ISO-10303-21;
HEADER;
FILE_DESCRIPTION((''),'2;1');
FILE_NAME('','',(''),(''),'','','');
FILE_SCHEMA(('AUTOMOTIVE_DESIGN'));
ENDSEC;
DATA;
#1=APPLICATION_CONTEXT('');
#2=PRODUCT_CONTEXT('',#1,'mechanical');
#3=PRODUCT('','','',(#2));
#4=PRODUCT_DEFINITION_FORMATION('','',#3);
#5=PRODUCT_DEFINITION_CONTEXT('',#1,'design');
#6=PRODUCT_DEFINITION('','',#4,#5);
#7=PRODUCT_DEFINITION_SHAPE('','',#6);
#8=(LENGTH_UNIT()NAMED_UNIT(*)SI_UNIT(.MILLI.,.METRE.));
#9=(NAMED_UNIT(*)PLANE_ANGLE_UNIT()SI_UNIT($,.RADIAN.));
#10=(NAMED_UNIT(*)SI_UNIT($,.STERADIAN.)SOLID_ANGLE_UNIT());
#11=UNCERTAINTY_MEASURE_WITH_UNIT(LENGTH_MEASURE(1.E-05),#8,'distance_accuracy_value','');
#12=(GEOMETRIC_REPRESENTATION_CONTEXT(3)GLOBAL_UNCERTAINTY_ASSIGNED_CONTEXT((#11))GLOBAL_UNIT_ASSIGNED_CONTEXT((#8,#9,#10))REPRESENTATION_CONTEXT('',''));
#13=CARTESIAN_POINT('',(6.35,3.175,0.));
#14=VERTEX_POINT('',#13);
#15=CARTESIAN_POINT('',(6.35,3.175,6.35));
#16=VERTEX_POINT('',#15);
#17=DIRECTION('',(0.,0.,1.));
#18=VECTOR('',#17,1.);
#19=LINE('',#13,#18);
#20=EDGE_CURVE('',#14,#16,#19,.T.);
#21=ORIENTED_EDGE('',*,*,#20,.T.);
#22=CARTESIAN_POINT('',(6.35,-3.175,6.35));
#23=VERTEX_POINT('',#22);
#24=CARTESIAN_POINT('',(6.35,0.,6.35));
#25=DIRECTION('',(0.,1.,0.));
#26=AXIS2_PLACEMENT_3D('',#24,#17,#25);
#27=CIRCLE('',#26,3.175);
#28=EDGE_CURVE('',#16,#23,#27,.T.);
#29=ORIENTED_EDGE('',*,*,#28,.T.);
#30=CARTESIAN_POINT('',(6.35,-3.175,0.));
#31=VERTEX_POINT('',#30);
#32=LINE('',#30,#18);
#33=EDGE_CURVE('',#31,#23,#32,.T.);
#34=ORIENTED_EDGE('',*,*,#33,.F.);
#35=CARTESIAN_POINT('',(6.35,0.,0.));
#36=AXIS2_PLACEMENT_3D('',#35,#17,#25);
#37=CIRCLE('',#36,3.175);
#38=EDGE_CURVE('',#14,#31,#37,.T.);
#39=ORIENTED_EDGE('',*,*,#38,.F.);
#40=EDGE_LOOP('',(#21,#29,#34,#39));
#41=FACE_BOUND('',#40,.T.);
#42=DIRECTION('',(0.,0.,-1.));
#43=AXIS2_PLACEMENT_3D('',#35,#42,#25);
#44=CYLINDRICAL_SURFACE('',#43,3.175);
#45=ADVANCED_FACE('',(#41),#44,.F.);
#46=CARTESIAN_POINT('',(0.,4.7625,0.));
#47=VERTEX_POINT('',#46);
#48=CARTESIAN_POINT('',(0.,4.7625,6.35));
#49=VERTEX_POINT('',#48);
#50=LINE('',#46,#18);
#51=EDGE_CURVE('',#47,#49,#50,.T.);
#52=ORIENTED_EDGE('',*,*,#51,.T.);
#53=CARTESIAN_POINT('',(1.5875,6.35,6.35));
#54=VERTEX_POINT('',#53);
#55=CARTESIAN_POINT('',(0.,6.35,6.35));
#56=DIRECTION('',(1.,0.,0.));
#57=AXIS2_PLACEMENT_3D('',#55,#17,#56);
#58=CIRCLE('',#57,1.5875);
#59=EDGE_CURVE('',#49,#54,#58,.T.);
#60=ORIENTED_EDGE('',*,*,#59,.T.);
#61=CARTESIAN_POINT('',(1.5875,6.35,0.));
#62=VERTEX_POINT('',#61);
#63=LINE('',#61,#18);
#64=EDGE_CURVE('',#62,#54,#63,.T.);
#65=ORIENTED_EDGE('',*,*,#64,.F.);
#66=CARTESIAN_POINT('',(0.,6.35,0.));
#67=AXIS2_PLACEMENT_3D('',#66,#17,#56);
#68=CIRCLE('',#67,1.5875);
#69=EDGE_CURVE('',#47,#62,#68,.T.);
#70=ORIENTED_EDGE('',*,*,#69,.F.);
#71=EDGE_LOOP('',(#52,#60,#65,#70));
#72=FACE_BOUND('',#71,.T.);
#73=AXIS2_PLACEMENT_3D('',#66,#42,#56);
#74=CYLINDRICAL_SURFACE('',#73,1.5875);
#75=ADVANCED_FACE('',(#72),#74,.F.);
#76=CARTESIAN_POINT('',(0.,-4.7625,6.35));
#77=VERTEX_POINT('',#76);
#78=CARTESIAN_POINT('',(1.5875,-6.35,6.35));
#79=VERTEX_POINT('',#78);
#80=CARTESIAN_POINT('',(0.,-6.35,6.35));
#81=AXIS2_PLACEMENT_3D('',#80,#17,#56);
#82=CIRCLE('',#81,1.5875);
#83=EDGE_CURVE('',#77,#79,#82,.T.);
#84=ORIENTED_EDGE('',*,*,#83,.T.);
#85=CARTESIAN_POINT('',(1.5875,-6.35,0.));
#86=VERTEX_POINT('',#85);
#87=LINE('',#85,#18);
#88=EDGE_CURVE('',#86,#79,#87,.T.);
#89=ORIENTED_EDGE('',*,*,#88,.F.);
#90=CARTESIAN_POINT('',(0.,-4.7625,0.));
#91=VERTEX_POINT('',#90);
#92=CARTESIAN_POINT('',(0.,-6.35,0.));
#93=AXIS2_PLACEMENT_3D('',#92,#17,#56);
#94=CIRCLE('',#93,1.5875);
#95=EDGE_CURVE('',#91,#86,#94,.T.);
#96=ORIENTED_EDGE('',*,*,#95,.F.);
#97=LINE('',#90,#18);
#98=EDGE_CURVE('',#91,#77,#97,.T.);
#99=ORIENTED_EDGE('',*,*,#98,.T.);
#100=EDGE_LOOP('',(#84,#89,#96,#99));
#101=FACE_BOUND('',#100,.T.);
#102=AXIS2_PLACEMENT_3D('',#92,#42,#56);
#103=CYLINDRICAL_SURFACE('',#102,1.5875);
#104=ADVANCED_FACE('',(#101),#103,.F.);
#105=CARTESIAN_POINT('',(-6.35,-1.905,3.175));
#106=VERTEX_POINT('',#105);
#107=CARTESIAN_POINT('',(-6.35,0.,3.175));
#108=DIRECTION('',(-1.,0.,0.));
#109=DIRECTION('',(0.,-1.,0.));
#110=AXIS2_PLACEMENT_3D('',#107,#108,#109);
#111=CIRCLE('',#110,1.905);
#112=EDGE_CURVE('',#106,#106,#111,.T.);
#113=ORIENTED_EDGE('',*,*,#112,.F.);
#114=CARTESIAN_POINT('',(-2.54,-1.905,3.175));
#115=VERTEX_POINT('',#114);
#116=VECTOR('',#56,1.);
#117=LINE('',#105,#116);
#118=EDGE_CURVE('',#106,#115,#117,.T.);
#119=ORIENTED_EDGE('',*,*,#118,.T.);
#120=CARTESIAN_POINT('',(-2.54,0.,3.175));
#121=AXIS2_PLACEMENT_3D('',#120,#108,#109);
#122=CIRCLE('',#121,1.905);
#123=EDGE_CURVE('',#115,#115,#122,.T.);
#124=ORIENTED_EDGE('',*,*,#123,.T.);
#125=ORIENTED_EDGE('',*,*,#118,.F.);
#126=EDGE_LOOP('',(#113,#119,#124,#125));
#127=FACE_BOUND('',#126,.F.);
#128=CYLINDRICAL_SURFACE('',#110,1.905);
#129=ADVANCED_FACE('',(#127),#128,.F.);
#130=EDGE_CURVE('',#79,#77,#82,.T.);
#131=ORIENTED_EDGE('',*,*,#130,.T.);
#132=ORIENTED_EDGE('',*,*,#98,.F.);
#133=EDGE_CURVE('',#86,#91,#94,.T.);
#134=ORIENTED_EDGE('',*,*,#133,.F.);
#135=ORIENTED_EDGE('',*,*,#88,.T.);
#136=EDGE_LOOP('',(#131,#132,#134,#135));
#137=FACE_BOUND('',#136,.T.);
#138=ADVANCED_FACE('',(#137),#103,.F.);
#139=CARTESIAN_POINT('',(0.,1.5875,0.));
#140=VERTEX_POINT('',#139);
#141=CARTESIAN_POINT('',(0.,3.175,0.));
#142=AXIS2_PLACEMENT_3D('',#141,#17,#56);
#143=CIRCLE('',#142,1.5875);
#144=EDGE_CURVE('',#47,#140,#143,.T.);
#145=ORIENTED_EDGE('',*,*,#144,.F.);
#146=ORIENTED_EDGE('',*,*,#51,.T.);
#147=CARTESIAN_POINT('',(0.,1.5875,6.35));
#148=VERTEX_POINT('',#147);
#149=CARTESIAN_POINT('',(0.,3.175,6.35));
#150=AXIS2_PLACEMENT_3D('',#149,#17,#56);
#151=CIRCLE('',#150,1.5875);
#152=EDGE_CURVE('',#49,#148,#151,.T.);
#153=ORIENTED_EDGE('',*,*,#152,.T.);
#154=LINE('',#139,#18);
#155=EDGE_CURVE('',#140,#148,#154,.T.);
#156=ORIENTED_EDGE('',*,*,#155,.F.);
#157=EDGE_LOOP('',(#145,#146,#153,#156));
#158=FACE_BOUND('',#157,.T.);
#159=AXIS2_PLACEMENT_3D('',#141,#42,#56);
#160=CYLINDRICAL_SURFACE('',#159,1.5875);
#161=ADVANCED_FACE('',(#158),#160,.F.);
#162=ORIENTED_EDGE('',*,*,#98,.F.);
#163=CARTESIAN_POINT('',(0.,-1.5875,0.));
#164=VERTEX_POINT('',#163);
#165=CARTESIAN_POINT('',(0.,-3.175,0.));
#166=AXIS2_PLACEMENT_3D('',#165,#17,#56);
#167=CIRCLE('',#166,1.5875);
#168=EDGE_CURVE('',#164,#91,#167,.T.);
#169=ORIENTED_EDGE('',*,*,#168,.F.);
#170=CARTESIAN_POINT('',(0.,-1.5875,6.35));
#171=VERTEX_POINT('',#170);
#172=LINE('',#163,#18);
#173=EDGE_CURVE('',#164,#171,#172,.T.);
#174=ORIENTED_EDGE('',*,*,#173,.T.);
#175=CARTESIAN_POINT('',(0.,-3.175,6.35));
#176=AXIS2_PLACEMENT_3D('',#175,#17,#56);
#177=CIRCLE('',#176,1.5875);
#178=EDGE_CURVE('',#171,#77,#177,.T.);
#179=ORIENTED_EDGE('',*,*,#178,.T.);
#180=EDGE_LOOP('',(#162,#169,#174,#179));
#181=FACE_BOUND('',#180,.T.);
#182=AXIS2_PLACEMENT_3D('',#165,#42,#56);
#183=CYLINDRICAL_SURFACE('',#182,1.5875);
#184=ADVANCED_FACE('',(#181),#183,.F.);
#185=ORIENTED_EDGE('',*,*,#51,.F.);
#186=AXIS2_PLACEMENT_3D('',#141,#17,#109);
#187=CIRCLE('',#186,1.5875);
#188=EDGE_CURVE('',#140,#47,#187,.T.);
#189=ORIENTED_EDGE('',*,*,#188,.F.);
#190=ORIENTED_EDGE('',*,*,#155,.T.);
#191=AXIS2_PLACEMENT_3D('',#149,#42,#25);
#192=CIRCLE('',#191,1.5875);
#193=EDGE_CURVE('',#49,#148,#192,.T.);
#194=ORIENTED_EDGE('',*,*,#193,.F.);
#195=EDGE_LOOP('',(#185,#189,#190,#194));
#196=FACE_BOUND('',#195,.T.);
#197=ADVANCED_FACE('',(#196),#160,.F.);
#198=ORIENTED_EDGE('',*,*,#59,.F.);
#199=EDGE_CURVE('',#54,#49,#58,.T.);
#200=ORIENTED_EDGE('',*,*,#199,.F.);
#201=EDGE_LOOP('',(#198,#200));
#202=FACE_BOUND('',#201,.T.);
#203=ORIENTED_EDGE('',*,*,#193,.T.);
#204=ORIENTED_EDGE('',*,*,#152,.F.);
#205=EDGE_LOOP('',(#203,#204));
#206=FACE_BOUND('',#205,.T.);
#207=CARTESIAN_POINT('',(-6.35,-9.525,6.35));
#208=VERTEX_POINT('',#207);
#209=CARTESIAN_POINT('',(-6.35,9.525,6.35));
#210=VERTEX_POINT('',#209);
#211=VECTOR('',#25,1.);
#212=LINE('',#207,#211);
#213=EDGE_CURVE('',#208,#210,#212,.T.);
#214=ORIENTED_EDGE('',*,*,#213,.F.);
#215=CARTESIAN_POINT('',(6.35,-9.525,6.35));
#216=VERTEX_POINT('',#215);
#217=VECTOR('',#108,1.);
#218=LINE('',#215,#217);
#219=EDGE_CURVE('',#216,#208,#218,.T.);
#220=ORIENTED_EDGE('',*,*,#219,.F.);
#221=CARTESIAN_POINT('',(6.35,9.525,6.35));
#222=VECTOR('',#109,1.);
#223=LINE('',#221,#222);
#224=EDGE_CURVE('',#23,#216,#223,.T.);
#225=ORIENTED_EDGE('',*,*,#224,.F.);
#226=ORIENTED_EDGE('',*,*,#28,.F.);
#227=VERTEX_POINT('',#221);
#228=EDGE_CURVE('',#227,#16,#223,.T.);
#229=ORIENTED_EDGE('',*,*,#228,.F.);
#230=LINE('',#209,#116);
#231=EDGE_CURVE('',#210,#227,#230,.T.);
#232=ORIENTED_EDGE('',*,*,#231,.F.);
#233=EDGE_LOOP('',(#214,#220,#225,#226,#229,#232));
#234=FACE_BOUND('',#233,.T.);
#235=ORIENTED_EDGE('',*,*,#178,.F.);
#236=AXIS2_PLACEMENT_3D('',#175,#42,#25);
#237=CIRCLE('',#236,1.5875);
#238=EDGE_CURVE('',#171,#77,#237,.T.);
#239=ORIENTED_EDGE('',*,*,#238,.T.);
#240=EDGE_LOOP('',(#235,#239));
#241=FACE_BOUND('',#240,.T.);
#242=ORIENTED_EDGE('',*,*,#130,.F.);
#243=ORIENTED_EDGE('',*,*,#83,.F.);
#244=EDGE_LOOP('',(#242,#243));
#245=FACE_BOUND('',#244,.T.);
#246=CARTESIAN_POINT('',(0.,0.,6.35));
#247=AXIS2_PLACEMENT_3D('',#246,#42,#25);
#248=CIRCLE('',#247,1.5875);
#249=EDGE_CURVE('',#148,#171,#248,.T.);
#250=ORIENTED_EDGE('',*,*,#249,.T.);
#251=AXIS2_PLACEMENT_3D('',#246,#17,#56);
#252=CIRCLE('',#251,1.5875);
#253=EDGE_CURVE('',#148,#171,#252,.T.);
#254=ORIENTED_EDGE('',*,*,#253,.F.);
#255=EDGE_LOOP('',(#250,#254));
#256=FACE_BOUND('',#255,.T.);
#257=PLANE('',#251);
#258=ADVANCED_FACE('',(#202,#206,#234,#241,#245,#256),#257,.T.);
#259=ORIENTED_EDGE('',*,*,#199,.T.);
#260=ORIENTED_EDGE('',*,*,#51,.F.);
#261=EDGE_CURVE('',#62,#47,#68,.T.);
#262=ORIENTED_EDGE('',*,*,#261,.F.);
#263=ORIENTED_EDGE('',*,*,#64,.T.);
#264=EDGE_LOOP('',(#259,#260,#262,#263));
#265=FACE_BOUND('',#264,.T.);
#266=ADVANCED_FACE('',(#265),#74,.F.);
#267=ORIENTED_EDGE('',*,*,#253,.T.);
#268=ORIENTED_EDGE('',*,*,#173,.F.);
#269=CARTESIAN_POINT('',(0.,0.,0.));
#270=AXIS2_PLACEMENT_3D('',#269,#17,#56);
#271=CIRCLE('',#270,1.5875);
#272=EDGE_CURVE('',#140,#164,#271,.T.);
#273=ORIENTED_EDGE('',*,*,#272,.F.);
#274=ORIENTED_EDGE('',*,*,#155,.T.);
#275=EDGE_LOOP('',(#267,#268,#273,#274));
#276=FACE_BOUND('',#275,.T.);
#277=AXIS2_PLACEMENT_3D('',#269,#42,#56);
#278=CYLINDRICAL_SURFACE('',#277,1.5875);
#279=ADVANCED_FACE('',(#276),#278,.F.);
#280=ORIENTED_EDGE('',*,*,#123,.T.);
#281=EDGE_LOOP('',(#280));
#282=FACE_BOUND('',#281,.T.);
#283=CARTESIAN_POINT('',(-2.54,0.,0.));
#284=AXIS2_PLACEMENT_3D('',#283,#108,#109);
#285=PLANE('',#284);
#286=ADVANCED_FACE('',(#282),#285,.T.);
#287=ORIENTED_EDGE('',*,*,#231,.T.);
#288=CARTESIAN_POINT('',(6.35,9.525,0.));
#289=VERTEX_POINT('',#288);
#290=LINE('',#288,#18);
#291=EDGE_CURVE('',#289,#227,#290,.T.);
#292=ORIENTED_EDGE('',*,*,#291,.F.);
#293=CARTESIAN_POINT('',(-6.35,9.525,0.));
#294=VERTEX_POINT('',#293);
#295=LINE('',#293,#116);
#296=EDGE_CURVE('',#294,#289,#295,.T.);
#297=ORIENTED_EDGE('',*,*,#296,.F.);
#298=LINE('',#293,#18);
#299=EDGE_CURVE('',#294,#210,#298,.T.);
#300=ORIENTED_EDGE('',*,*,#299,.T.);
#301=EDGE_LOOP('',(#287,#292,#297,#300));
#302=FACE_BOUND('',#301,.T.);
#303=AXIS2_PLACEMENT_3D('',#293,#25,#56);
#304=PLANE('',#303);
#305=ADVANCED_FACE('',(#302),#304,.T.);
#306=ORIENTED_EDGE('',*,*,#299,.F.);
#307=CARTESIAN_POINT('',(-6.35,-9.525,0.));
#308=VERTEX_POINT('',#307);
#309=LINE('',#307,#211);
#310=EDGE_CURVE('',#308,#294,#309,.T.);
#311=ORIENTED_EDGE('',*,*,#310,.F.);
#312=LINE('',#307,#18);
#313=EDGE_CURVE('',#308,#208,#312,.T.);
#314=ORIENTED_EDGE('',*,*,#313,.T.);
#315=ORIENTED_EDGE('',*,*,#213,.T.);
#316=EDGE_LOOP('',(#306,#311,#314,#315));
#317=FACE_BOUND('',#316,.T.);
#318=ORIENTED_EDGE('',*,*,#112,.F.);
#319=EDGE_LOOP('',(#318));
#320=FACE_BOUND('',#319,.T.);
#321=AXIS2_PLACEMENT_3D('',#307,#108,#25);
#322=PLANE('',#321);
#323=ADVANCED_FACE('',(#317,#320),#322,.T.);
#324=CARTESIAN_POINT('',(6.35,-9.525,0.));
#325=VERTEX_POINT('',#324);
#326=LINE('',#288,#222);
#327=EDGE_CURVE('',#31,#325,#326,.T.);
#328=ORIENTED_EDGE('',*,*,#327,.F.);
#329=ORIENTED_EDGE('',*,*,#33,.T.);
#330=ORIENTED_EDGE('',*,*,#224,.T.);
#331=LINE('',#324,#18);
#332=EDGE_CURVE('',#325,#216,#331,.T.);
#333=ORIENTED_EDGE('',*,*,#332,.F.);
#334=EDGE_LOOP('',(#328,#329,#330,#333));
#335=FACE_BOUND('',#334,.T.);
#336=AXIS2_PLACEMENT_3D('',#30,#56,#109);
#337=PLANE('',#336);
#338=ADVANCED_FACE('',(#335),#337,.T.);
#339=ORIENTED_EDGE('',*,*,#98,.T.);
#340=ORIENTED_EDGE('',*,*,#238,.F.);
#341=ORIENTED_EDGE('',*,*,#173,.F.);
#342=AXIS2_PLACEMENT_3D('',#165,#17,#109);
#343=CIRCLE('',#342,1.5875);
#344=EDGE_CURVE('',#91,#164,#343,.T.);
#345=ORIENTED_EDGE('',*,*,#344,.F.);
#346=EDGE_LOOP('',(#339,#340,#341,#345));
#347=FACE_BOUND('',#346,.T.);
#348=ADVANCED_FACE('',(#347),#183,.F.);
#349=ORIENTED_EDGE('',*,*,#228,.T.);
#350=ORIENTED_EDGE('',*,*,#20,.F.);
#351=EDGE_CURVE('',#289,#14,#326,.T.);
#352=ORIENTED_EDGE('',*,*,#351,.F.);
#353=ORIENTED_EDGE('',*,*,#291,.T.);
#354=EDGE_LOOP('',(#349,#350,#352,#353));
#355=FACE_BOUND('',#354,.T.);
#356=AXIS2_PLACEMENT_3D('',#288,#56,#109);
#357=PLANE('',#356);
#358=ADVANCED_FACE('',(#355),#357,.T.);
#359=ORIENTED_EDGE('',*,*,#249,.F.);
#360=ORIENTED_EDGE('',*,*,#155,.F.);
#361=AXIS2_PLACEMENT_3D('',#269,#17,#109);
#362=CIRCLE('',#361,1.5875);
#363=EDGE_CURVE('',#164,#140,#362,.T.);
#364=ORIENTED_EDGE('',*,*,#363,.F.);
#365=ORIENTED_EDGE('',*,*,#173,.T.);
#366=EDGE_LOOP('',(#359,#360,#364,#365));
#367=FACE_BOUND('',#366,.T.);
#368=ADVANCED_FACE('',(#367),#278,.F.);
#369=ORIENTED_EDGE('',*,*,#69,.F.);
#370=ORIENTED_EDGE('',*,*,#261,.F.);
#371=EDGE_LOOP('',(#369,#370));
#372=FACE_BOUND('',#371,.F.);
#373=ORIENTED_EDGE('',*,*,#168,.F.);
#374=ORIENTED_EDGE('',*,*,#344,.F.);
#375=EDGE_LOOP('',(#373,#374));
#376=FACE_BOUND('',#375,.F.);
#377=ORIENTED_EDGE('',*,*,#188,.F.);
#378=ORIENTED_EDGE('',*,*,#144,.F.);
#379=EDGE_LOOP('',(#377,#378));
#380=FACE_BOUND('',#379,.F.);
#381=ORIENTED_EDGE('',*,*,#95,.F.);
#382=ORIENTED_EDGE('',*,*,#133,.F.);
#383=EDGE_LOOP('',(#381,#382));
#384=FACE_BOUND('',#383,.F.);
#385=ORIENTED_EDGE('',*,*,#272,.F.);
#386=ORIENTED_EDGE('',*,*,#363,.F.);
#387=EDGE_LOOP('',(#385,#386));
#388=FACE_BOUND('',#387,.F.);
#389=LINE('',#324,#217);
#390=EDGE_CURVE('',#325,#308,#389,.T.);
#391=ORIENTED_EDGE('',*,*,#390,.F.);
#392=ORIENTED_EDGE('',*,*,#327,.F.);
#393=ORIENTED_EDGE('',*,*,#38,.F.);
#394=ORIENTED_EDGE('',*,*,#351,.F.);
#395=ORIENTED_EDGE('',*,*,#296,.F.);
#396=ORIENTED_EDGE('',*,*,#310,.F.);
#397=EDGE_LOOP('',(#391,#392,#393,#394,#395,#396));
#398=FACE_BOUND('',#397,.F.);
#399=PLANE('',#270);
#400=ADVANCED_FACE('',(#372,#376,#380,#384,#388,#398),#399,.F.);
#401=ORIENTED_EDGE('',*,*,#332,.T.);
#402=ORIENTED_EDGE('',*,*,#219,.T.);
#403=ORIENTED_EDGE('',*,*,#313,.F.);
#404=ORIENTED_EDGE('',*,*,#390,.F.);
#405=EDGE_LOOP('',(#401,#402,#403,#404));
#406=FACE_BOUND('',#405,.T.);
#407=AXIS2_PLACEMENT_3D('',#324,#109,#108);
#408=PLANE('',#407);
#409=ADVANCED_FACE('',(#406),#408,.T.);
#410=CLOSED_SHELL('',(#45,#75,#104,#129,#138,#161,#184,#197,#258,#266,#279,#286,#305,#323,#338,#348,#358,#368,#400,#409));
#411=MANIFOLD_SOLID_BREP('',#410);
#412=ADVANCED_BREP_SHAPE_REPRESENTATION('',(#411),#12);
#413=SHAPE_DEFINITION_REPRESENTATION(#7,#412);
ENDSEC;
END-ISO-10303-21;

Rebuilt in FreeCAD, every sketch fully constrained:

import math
import FreeCAD as App
import Part
import Sketcher
Q = App.Units.Quantity

doc = App.newDocument("Part")
body = doc.addObject("PartDesign::Body", "Body")

sketch1 = doc.addObject("Sketcher::SketchObject", "Sketch")
body.addObject(sketch1)
sketch1.AttachmentSupport = (doc.XY_Plane, [""])
sketch1.MapMode = "FlatFace"
sketch1.addGeometry([
    Part.LineSegment(App.Vector(6.3, 9.5, 0), App.Vector(-6.3, 9.5, 0)),
    Part.LineSegment(App.Vector(-6.3, 9.5, 0), App.Vector(-6.3, -9.5, 0)),
    Part.LineSegment(App.Vector(-6.3, -9.5, 0), App.Vector(6.3, -9.5, 0)),
    Part.LineSegment(App.Vector(6.3, -9.5, 0), App.Vector(6.3, -3.2, 0)),
    Part.ArcOfCircle(Part.Circle(App.Vector(6.3, 0, 0), App.Vector(0, 0, 1), 3.2), math.radians(90), math.radians(270)),
    Part.LineSegment(App.Vector(6.3, 3.2, 0), App.Vector(6.3, 9.5, 0)),
    Part.Circle(App.Vector(0, -6.3, 0), App.Vector(0, 0, 1), 1.6),
    Part.ArcOfCircle(Part.Circle(App.Vector(0, -3.2, 0), App.Vector(0, 0, 1), 1.6), math.radians(90), math.radians(270)),
    Part.ArcOfCircle(Part.Circle(App.Vector(0, -3.2, 0), App.Vector(0, 0, 1), 1.6), math.radians(-90), math.radians(90)),
    Part.ArcOfCircle(Part.Circle(App.Vector(0, 0, 0), App.Vector(0, 0, 1), 1.6), math.radians(90), math.radians(270)),
    Part.ArcOfCircle(Part.Circle(App.Vector(0, 0, 0), App.Vector(0, 0, 1), 1.6), math.radians(-90), math.radians(90)),
    Part.ArcOfCircle(Part.Circle(App.Vector(0, 3.2, 0), App.Vector(0, 0, 1), 1.6), math.radians(90), math.radians(270)),
    Part.ArcOfCircle(Part.Circle(App.Vector(0, 3.2, 0), App.Vector(0, 0, 1), 1.6), math.radians(-90), math.radians(90)),
    Part.Circle(App.Vector(0, 6.3, 0), App.Vector(0, 0, 1), 1.6),
], False)
sketch1.addConstraint([
    Sketcher.Constraint("Coincident", 0, 2, 1, 1),
    Sketcher.Constraint("Coincident", 1, 2, 2, 1),
    Sketcher.Constraint("Coincident", 2, 2, 3, 1),
    Sketcher.Constraint("Coincident", 3, 2, 4, 2),
    Sketcher.Constraint("Coincident", 4, 1, 5, 1),
    Sketcher.Constraint("Coincident", 5, 2, 0, 1),
    Sketcher.Constraint("Tangent", 7, 1, 8, 2),
    Sketcher.Constraint("Coincident", 8, 1, 7, 2),
    Sketcher.Constraint("Tangent", 9, 1, 10, 2),
    Sketcher.Constraint("Coincident", 10, 1, 9, 2),
    Sketcher.Constraint("Tangent", 11, 1, 12, 2),
    Sketcher.Constraint("Coincident", 12, 1, 11, 2),
    Sketcher.Constraint("Horizontal", 0),
    Sketcher.Constraint("Vertical", 1),
    Sketcher.Constraint("Horizontal", 2),
    Sketcher.Constraint("Vertical", 3),
    Sketcher.Constraint("Vertical", 5),
    Sketcher.Constraint("Coincident", 9, 3, -1, 1),
    Sketcher.Constraint("Coincident", 10, 1, 7, 1),
    Sketcher.Constraint("Coincident", 12, 1, 9, 1),
    Sketcher.Constraint("Equal", 6, 7),
    Sketcher.Constraint("Equal", 8, 9),
    Sketcher.Constraint("Equal", 10, 11),
    Sketcher.Constraint("Equal", 12, 13),
    Sketcher.Constraint("Symmetric", 6, 3, 13, 3, -1, 1),
    Sketcher.Constraint("Symmetric", 0, 2, 2, 2, -1, 1),
    Sketcher.Constraint("Symmetric", 3, 2, 4, 1, -1),
    Sketcher.Constraint("PointOnObject", 6, 3, -2),
    Sketcher.Constraint("PointOnObject", 7, 3, -2),
    Sketcher.Constraint("PointOnObject", 11, 3, -2),
    Sketcher.Constraint("PointOnObject", 7, 1, -2),
    Sketcher.Constraint("PointOnObject", 8, 1, -2),
    Sketcher.Constraint("PointOnObject", 9, 1, -2),
    Sketcher.Constraint("PointOnObject", 11, 1, -2),
    Sketcher.Constraint("Horizontal", 8, 3, 3, 2),
    Sketcher.Constraint("Vertical", 4, 3, 2, 2),
    Sketcher.Constraint("Diameter", 6, Q("0.125 in")),
    Sketcher.Constraint("DistanceX", 0, 2, 0, 1, Q("0.5 in")),
    Sketcher.Constraint("DistanceY", 1, 2, 1, 1, Q("0.75 in")),
    Sketcher.Constraint("DistanceY", 6, 3, -1, 1, Q("0.25 in")),
])
pad1 = doc.addObject("PartDesign::Pad", "Pad")
body.addObject(pad1)
pad1.Profile = sketch1
pad1.Length = Q("0.25 in")

sketch2 = doc.addObject("Sketcher::SketchObject", "Sketch001")
body.addObject(sketch2)
sketch2.AttachmentSupport = (doc.YZ_Plane, [""])
sketch2.MapMode = "FlatFace"
sketch2.AttachmentOffset = App.Placement(App.Vector(0, 0, -0.25 * 25.4), App.Rotation())
sketch2.addGeometry(Part.Circle(App.Vector(0, 3.2, 0), App.Vector(0, 0, 1), 1.9), False)
sketch2.addConstraint([
    Sketcher.Constraint("PointOnObject", 0, 3, -2),
    Sketcher.Constraint("Diameter", 0, Q("0.15 in")),
    Sketcher.Constraint("DistanceY", -1, 1, 0, 3, Q("0.125 in")),
])
pocket1 = doc.addObject("PartDesign::Pocket", "Pocket")
body.addObject(pocket1)
pocket1.Profile = sketch2
pocket1.Length = Q("0.15 in")
pocket1.Reversed = True

doc.recompute()
